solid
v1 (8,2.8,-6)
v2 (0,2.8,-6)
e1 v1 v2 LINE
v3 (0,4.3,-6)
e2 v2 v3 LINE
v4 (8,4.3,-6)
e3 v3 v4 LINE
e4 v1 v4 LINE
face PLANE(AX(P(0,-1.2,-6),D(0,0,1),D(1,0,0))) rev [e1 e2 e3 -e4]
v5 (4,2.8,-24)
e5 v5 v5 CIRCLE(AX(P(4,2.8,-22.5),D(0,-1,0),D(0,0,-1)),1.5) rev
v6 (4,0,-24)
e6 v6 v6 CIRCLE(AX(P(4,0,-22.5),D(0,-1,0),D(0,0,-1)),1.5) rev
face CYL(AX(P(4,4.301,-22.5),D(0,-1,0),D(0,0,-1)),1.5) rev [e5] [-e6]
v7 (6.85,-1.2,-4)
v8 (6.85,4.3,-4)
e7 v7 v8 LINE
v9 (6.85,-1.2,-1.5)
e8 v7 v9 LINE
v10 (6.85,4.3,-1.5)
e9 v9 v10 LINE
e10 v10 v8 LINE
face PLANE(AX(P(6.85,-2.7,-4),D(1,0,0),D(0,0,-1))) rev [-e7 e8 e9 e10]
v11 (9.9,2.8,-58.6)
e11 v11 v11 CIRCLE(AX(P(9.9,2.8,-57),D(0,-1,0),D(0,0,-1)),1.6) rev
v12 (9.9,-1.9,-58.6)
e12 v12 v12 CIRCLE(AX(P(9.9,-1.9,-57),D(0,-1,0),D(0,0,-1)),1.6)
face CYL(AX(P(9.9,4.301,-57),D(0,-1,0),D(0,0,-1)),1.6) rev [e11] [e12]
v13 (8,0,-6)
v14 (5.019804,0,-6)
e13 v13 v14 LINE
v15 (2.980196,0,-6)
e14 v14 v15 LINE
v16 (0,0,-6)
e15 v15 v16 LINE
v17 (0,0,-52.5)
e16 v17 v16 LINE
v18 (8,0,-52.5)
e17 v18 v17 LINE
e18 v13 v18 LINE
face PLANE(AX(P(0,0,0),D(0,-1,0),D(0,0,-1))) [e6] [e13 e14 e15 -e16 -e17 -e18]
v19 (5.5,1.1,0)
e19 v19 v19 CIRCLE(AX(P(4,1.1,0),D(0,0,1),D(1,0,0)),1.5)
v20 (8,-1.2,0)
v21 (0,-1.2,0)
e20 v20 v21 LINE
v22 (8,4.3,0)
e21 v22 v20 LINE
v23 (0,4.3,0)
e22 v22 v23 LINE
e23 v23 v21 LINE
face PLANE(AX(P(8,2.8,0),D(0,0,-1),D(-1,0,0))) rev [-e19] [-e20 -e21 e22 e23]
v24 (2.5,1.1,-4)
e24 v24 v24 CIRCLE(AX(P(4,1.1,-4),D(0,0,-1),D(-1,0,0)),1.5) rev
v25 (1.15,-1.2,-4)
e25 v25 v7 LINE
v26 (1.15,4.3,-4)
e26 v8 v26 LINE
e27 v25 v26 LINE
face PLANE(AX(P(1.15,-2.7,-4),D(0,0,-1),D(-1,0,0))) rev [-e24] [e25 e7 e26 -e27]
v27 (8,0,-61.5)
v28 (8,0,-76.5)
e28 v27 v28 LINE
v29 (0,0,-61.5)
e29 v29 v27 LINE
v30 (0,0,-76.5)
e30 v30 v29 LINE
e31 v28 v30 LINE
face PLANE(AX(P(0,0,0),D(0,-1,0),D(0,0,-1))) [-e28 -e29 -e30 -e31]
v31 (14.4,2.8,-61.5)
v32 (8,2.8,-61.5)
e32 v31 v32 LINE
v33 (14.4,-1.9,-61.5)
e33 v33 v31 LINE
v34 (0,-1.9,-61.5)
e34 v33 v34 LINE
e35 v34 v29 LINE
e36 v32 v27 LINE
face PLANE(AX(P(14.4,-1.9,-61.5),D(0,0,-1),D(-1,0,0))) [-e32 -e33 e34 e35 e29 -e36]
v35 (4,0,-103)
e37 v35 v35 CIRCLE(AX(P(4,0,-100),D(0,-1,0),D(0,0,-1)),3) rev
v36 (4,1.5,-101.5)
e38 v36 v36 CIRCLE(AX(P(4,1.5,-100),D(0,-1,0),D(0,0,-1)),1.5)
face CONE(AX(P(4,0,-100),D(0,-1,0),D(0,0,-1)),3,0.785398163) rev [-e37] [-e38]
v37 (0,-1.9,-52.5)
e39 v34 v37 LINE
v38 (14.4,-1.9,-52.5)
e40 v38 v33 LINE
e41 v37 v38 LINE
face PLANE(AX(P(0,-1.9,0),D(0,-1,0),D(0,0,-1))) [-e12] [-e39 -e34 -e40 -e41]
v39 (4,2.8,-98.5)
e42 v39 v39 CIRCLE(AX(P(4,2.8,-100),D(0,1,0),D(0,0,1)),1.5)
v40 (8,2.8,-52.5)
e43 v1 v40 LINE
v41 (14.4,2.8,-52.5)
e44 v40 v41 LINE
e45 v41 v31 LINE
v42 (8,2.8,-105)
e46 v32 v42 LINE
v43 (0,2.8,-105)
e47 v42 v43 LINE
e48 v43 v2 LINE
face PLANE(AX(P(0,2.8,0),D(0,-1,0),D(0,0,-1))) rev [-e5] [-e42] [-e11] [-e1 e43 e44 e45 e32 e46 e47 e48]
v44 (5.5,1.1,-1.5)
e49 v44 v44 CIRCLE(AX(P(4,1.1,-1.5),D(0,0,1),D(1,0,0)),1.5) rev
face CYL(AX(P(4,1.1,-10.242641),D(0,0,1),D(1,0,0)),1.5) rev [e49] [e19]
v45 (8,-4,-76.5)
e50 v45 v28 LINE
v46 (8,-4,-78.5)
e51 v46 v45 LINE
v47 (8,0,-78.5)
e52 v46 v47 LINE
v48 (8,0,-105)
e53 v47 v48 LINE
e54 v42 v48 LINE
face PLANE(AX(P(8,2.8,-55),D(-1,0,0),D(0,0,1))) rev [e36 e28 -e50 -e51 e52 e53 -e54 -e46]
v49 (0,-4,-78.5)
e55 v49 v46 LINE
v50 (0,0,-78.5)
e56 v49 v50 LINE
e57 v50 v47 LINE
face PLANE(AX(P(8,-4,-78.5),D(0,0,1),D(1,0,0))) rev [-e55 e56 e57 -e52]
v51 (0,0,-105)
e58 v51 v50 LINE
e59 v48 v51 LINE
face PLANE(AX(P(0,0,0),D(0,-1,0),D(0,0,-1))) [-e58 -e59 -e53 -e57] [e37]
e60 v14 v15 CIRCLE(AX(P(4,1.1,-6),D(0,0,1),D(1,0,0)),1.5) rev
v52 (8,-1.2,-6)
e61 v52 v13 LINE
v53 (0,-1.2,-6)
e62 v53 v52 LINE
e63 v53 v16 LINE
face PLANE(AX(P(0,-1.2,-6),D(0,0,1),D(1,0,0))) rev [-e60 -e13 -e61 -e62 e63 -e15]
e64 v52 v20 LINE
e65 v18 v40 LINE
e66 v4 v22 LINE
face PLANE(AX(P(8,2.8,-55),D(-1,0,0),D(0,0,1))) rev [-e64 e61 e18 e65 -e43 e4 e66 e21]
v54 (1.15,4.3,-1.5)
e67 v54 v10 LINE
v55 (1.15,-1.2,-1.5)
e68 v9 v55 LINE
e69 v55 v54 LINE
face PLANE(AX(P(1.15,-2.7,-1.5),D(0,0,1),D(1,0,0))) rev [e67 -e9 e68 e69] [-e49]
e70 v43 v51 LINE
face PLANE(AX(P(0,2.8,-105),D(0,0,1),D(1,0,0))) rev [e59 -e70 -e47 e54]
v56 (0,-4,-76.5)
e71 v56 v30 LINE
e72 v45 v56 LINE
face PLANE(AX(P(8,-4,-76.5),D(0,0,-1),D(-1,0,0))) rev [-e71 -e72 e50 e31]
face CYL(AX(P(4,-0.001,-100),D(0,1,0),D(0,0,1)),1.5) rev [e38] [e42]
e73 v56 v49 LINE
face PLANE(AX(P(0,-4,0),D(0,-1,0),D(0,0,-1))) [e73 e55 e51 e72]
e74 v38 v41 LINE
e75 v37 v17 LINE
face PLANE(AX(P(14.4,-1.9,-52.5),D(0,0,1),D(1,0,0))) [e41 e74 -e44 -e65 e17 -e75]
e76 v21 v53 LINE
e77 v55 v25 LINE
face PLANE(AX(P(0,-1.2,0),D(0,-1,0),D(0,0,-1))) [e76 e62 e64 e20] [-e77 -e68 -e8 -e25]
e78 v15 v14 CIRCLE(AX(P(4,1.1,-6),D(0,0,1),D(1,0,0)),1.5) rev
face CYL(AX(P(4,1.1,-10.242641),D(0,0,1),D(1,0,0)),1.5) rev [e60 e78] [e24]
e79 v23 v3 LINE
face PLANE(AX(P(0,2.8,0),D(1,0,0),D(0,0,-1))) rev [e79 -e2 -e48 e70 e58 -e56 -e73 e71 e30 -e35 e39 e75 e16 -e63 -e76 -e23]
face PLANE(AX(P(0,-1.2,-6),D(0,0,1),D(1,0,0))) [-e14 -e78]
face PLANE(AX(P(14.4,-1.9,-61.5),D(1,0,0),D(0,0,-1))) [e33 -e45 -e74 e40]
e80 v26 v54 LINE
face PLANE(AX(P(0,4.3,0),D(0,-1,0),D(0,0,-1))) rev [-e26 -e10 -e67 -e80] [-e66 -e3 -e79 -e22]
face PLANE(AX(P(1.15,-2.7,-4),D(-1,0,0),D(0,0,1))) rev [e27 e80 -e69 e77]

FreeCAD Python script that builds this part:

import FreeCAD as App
import Part
import Sketcher


def edges_at(feature, points):
    """Names of the edges that pass closest to the given points."""
    edges = feature.Shape.Edges
    near = lambda p: min(range(len(edges)), key=lambda i: edges[i].distToShape(Part.Vertex(*p))[0])
    return sorted({f"Edge{near(p) + 1}" for p in points})

doc = App.newDocument("Part")
body = doc.addObject("PartDesign::Body", "Body")

# Sketch on XZ plane
sketch1 = body.newObject("Sketcher::SketchObject", "Sketch")
sketch1.AttachmentSupport = (doc.getObject("XZ_Plane"), [""])
sketch1.MapMode = "FlatFace"
sketch1.addGeometry([
    Part.LineSegment(App.Vector(0, -105, 0), App.Vector(0, 0, 0)),
    Part.LineSegment(App.Vector(0, 0, 0), App.Vector(8, 0, 0)),
    Part.LineSegment(App.Vector(8, 0, 0), App.Vector(8, -105, 0)),
    Part.LineSegment(App.Vector(8, -105, 0), App.Vector(0, -105, 0)),
], False)
sketch1.addConstraint([
    Sketcher.Constraint("Coincident", 0, 2, 1, 1),
    Sketcher.Constraint("Coincident", 1, 2, 2, 1),
    Sketcher.Constraint("Coincident", 2, 2, 3, 1),
    Sketcher.Constraint("Coincident", 3, 2, 0, 1),
    Sketcher.Constraint("Vertical", 0),
    Sketcher.Constraint("Horizontal", 1),
    Sketcher.Constraint("Vertical", 2),
    Sketcher.Constraint("Horizontal", 3),
    Sketcher.Constraint("Coincident", 0, 2, -1, 1),
    Sketcher.Constraint("DistanceX", 1, 1, 1, 2, 8.0),
    Sketcher.Constraint("DistanceY", 0, 1, 0, 2, 105.0),
])
pad1 = body.newObject("PartDesign::Pad", "Pad")
pad1.Profile = sketch1
pad1.Length = 2.8
pad1.Reversed = True

# Sketch on XZ plane
sketch2 = body.newObject("Sketcher::SketchObject", "Sketch001")
sketch2.AttachmentSupport = (doc.getObject("XZ_Plane"), [""])
sketch2.MapMode = "FlatFace"
sketch2.AttachmentOffset = App.Placement(App.Vector(0, 0, -2.8), App.Rotation())
sketch2.addGeometry(Part.Circle(App.Vector(4, -100, 0), App.Vector(0, 0, 1), 1.5), False)
sketch2.addConstraint([
    Sketcher.Constraint("Diameter", 0, 3.0),
    Sketcher.Constraint("DistanceX", -1, 1, 0, 3, 4.0),
    Sketcher.Constraint("DistanceY", 0, 3, -1, 1, 100.0),
])
pocket1 = body.newObject("PartDesign::Pocket", "Pocket")
pocket1.Profile = sketch2
pocket1.Type = "UpToFirst"
pocket1.Reversed = True
doc.recompute()

chamfer = body.newObject("PartDesign::Chamfer", "Chamfer")
chamfer.Base = (pocket1, edges_at(pocket1, [(4, 0, -101.5)]))
chamfer.Size = 1.5

# Sketch on XZ plane
sketch3 = body.newObject("Sketcher::SketchObject", "Sketch002")
sketch3.AttachmentSupport = (doc.getObject("XZ_Plane"), [""])
sketch3.MapMode = "FlatFace"
sketch3.addGeometry([
    Part.LineSegment(App.Vector(8, -6, 0), App.Vector(8, 0, 0)),
    Part.LineSegment(App.Vector(8, 0, 0), App.Vector(0, 0, 0)),
    Part.LineSegment(App.Vector(0, 0, 0), App.Vector(0, -6, 0)),
    Part.LineSegment(App.Vector(0, -6, 0), App.Vector(8, -6, 0)),
], False)
sketch3.addConstraint([
    Sketcher.Constraint("Coincident", 0, 2, 1, 1),
    Sketcher.Constraint("Coincident", 1, 2, 2, 1),
    Sketcher.Constraint("Coincident", 2, 2, 3, 1),
    Sketcher.Constraint("Coincident", 3, 2, 0, 1),
    Sketcher.Constraint("Vertical", 0),
    Sketcher.Constraint("Horizontal", 1),
    Sketcher.Constraint("Vertical", 2),
    Sketcher.Constraint("Horizontal", 3),
    Sketcher.Constraint("Coincident", 1, 2, -1, 1),
    Sketcher.Constraint("DistanceX", 1, 2, 1, 1, 8.0),
    Sketcher.Constraint("DistanceY", 0, 1, 0, 2, 6.0),
])
pad2 = body.newObject("PartDesign::Pad", "Pad001")
pad2.Profile = sketch3
pad2.Type = "TwoLengths"
pad2.Length = 1.2
pad2.Length2 = 4.3

# Sketch on XY plane
sketch4 = body.newObject("Sketcher::SketchObject", "Sketch003")
sketch4.AttachmentSupport = (doc.getObject("XY_Plane"), [""])
sketch4.MapMode = "FlatFace"
sketch4.addGeometry(Part.Circle(App.Vector(4, 1.1, 0), App.Vector(0, 0, 1), 1.5), False)
sketch4.addConstraint([
    Sketcher.Constraint("Diameter", 0, 3.0),
    Sketcher.Constraint("DistanceX", -1, 1, 0, 3, 4.0),
    Sketcher.Constraint("DistanceY", -1, 1, 0, 3, 1.1),
])
pocket2 = body.newObject("PartDesign::Pocket", "Pocket001")
pocket2.Profile = sketch4
pocket2.Length = 6

# Sketch on XZ plane
sketch5 = body.newObject("Sketcher::SketchObject", "Sketch004")
sketch5.AttachmentSupport = (doc.getObject("XZ_Plane"), [""])
sketch5.MapMode = "FlatFace"
sketch5.AttachmentOffset = App.Placement(App.Vector(0, 0, -4.3), App.Rotation())
sketch5.addGeometry([
    Part.LineSegment(App.Vector(1.15, -4, 0), App.Vector(1.15, -1.5, 0)),
    Part.LineSegment(App.Vector(1.15, -1.5, 0), App.Vector(6.85, -1.5, 0)),
    Part.LineSegment(App.Vector(6.85, -1.5, 0), App.Vector(6.85, -4, 0)),
    Part.LineSegment(App.Vector(6.85, -4, 0), App.Vector(1.15, -4, 0)),
], False)
sketch5.addConstraint([
    Sketcher.Constraint("Coincident", 0, 2, 1, 1),
    Sketcher.Constraint("Coincident", 1, 2, 2, 1),
    Sketcher.Constraint("Coincident", 2, 2, 3, 1),
    Sketcher.Constraint("Coincident", 3, 2, 0, 1),
    Sketcher.Constraint("Vertical", 0),
    Sketcher.Constraint("Horizontal", 1),
    Sketcher.Constraint("Vertical", 2),
    Sketcher.Constraint("Horizontal", 3),
    Sketcher.Constraint("DistanceX", 1, 1, 1, 2, 5.7),
    Sketcher.Constraint("DistanceY", 0, 1, 0, 2, 2.5),
    Sketcher.Constraint("DistanceY", 2, 2, -1, 1, 4.0),
    Sketcher.Constraint("DistanceX", -1, 1, 0, 2, 1.15),
])
pocket3 = body.newObject("PartDesign::Pocket", "Pocket002")
pocket3.Profile = sketch5
pocket3.Length = 7
pocket3.Reversed = True

# Sketch on XZ plane
sketch6 = body.newObject("Sketcher::SketchObject", "Sketch005")
sketch6.AttachmentSupport = (doc.getObject("XZ_Plane"), [""])
sketch6.MapMode = "FlatFace"
sketch6.AttachmentOffset = App.Placement(App.Vector(0, 0, -2.8), App.Rotation())
sketch6.addGeometry([
    Part.LineSegment(App.Vector(0, -61.5, 0), App.Vector(0, -52.5, 0)),
    Part.LineSegment(App.Vector(0, -52.5, 0), App.Vector(14.4, -52.5, 0)),
    Part.LineSegment(App.Vector(14.4, -52.5, 0), App.Vector(14.4, -61.5, 0)),
    Part.LineSegment(App.Vector(14.4, -61.5, 0), App.Vector(0, -61.5, 0)),
], False)
sketch6.addConstraint([
    Sketcher.Constraint("Coincident", 0, 2, 1, 1),
    Sketcher.Constraint("Coincident", 1, 2, 2, 1),
    Sketcher.Constraint("Coincident", 2, 2, 3, 1),
    Sketcher.Constraint("Coincident", 3, 2, 0, 1),
    Sketcher.Constraint("Vertical", 0),
    Sketcher.Constraint("Horizontal", 1),
    Sketcher.Constraint("Vertical", 2),
    Sketcher.Constraint("Horizontal", 3),
    Sketcher.Constraint("PointOnObject", 0, 2, -2),
    Sketcher.Constraint("DistanceY", 0, 1, 0, 2, 9.0),
    Sketcher.Constraint("DistanceX", 1, 1, 1, 2, 14.4),
    Sketcher.Constraint("DistanceY", 0, 2, -1, 1, 52.5),
])
pad3 = body.newObject("PartDesign::Pad", "Pad002")
pad3.Profile = sketch6
pad3.Length = 4.7

# Sketch on XZ plane
sketch7 = body.newObject("Sketcher::SketchObject", "Sketch006")
sketch7.AttachmentSupport = (doc.getObject("XZ_Plane"), [""])
sketch7.MapMode = "FlatFace"
sketch7.AttachmentOffset = App.Placement(App.Vector(0, 0, 1.9), App.Rotation())
sketch7.addGeometry(Part.Circle(App.Vector(9.9, -57, 0), App.Vector(0, 0, 1), 1.6), False)
sketch7.addConstraint([
    Sketcher.Constraint("Diameter", 0, 3.2),
    Sketcher.Constraint("DistanceY", 0, 3, -1, 1, 57.0),
    Sketcher.Constraint("DistanceX", -1, 1, 0, 3, 9.9),
])
pocket4 = body.newObject("PartDesign::Pocket", "Pocket003")
pocket4.Profile = sketch7
pocket4.Type = "UpToFirst"

# Sketch on XZ plane
sketch8 = body.newObject("Sketcher::SketchObject", "Sketch007")
sketch8.AttachmentSupport = (doc.getObject("XZ_Plane"), [""])
sketch8.MapMode = "FlatFace"
sketch8.AttachmentOffset = App.Placement(App.Vector(0, 0, 1.9), App.Rotation())
sketch8.addGeometry(Part.Circle(App.Vector(4, -22.5, 0), App.Vector(0, 0, 1), 1.5), False)
sketch8.addConstraint([
    Sketcher.Constraint("Diameter", 0, 3.0),
    Sketcher.Constraint("DistanceX", -1, 1, 0, 3, 4.0),
    Sketcher.Constraint("DistanceY", 0, 3, -1, 1, 22.5),
])
pocket5 = body.newObject("PartDesign::Pocket", "Pocket004")
pocket5.Profile = sketch8
pocket5.Length = 4.7

# Sketch on XZ plane
sketch9 = body.newObject("Sketcher::SketchObject", "Sketch008")
sketch9.AttachmentSupport = (doc.getObject("XZ_Plane"), [""])
sketch9.MapMode = "FlatFace"
sketch9.addGeometry([
    Part.LineSegment(App.Vector(0, -76.5, 0), App.Vector(0, -78.5, 0)),
    Part.LineSegment(App.Vector(0, -78.5, 0), App.Vector(8, -78.5, 0)),
    Part.LineSegment(App.Vector(8, -78.5, 0), App.Vector(8, -76.5, 0)),
    Part.LineSegment(App.Vector(8, -76.5, 0), App.Vector(0, -76.5, 0)),
], False)
sketch9.addConstraint([
    Sketcher.Constraint("Coincident", 0, 2, 1, 1),
    Sketcher.Constraint("Coincident", 1, 2, 2, 1),
    Sketcher.Constraint("Coincident", 2, 2, 3, 1),
    Sketcher.Constraint("Coincident", 3, 2, 0, 1),
    Sketcher.Constraint("Vertical", 0),
    Sketcher.Constraint("Horizontal", 1),
    Sketcher.Constraint("Vertical", 2),
    Sketcher.Constraint("Horizontal", 3),
    Sketcher.Constraint("PointOnObject", 0, 2, -2),
    Sketcher.Constraint("DistanceX", 1, 1, 1, 2, 8.0),
    Sketcher.Constraint("DistanceY", 0, 2, 0, 1, 2.0),
    Sketcher.Constraint("DistanceY", 0, 2, -1, 1, 78.5),
])
pad4 = body.newObject("PartDesign::Pad", "Pad003")
pad4.Profile = sketch9
pad4.Length = 4

doc.recompute()
